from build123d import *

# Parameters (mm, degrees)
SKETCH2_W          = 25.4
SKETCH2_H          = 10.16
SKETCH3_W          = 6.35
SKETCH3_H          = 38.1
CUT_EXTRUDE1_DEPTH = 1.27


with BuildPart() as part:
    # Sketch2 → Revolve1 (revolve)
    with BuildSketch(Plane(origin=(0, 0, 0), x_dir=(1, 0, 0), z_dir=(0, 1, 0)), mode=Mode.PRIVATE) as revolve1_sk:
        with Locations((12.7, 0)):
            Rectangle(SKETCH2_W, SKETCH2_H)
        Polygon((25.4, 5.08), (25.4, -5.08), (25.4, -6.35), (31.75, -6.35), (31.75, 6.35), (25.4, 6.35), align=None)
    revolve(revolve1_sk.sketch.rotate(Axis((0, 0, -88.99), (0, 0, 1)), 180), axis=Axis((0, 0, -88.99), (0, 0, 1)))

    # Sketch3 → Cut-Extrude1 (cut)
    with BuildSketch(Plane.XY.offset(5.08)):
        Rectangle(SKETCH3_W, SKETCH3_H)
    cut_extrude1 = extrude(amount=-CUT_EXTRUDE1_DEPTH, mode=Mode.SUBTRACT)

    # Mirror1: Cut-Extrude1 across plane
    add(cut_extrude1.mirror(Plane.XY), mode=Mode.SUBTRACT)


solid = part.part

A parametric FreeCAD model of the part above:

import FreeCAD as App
import Part
import Sketcher
Q = App.Units.Quantity


def add_polygon(sketch, points):
    """Adds a closed chain of lines whose ends are joined by coincident constraints."""
    first, n = sketch.GeometryCount, len(points)
    for a, b in zip(points, points[1:] + points[:1]):
        sketch.addGeometry(Part.LineSegment(App.Vector(*a, 0), App.Vector(*b, 0)), False)
    for i in range(n):
        sketch.addConstraint(Sketcher.Constraint("Coincident", first + i, 2, first + (i + 1) % n, 1))

doc = App.newDocument("Part")
body = doc.addObject("PartDesign::Body", "Body")

# Sketch on XZ plane
sketch1 = body.newObject("Sketcher::SketchObject", "Sketch")
sketch1.AttachmentSupport = (doc.getObject("XZ_Plane"), [""])
sketch1.MapMode = "FlatFace"
add_polygon(sketch1, [(0, -5.08), (0, 5.08), (25.4, 5.08), (25.4, 6.35), (31.75, 6.35), (31.75, -6.35), (25.4, -6.35), (25.4, -5.08)])  # lines 0-7
sketch1.addConstraint([
    Sketcher.Constraint("Vertical", 0),
    Sketcher.Constraint("Horizontal", 1),
    Sketcher.Constraint("Vertical", 2),
    Sketcher.Constraint("Horizontal", 3),
    Sketcher.Constraint("Vertical", 4),
    Sketcher.Constraint("Horizontal", 5),
    Sketcher.Constraint("Vertical", 6),
    Sketcher.Constraint("Horizontal", 7),
    Sketcher.Constraint("Symmetric", 0, 2, 7, 2, -1, 1),
    Sketcher.Constraint("Symmetric", 2, 2, 5, 2, -1),
    Sketcher.Constraint("DistanceX", 1, 1, 1, 2, Q("1 in")),
    Sketcher.Constraint("DistanceY", 0, 1, 0, 2, Q("0.4 in")),
    Sketcher.Constraint("DistanceY", 4, 2, 4, 1, Q("0.5 in")),
    Sketcher.Constraint("DistanceX", 3, 1, 3, 2, Q("0.25 in")),
])
revolution = body.newObject("PartDesign::Revolution", "Revolution")
revolution.Profile = sketch1
revolution.ReferenceAxis = (sketch1, ["V_Axis"])
revolution.Angle = 360

# Sketch on XY plane
sketch2 = body.newObject("Sketcher::SketchObject", "Sketch001")
sketch2.AttachmentSupport = (doc.getObject("XY_Plane"), [""])
sketch2.MapMode = "FlatFace"
sketch2.AttachmentOffset = App.Placement(App.Vector(0, 0, 0.2 * 25.4), App.Rotation())
add_polygon(sketch2, [(-3.175, 19.05), (-3.175, -19.05), (3.175, -19.05), (3.175, 19.05)])  # lines 0-3
sketch2.addConstraint([
    Sketcher.Constraint("Vertical", 0),
    Sketcher.Constraint("Horizontal", 1),
    Sketcher.Constraint("Vertical", 2),
    Sketcher.Constraint("Horizontal", 3),
    Sketcher.Constraint("Symmetric", 0, 2, 2, 2, -1, 1),
    Sketcher.Constraint("DistanceY", 0, 2, 0, 1, Q("1.5 in")),
    Sketcher.Constraint("DistanceX", 1, 1, 1, 2, Q("0.25 in")),
])
pocket1 = body.newObject("PartDesign::Pocket", "Pocket")
pocket1.Profile = sketch2
pocket1.Length = Q("0.05 in")
doc.recompute()

mirrored = body.newObject("PartDesign::Mirrored", "Mirrored")
mirrored.Originals = [pocket1]
mirrored.MirrorPlane = (doc.getObject("XY_Plane"), [""])
body.Tip = mirrored

doc.recompute()
